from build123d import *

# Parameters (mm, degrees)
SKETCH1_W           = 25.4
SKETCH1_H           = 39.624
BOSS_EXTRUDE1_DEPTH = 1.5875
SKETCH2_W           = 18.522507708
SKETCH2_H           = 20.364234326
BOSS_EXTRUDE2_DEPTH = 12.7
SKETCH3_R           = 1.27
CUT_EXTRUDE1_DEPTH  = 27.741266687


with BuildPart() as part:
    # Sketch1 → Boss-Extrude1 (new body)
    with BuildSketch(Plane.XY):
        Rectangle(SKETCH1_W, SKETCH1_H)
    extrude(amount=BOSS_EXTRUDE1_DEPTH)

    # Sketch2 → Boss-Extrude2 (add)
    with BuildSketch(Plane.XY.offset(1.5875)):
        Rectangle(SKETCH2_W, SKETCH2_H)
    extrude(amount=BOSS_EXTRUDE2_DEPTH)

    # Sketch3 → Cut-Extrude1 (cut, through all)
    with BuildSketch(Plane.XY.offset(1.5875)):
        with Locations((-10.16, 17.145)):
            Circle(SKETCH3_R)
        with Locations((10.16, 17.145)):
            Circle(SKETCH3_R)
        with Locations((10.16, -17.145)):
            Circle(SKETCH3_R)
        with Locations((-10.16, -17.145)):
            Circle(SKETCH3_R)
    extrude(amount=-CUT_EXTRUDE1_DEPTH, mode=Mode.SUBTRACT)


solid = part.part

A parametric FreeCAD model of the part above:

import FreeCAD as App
import Part
import Sketcher
Q = App.Units.Quantity

doc = App.newDocument("Part")
params = doc.addObject("Spreadsheet::Sheet", "Params")
for row, (alias, value) in enumerate([
    ("sketch1_width", "1 in"),
    ("sketch1_height", "1.56 in"),
    ("pad1_length", "0.0625 in"),
    ("pad2_length", "0.5 in"),
    ("sketch3_diameter", "0.1 in"),
], start=1):
    params.set(f"A{row}", alias)
    params.set(f"B{row}", "=" + value)
    params.setAlias(f"B{row}", alias)

body = doc.addObject("PartDesign::Body", "Body")

# Sketch on XY plane
sketch1 = body.newObject("Sketcher::SketchObject", "Sketch")
sketch1.AttachmentSupport = (doc.getObject("XY_Plane"), [""])
sketch1.MapMode = "FlatFace"
sketch1.addGeometry(Part.LineSegment(App.Vector(-13, 20, 0), App.Vector(-13, -20, 0)), False)
sketch1.addGeometry(Part.LineSegment(App.Vector(-13, -20, 0), App.Vector(13, -20, 0)), False)
sketch1.addGeometry(Part.LineSegment(App.Vector(13, -20, 0), App.Vector(13, 20, 0)), False)
sketch1.addGeometry(Part.LineSegment(App.Vector(13, 20, 0), App.Vector(-13, 20, 0)), False)
sketch1.addConstraint(Sketcher.Constraint("Coincident", 0, 2, 1, 1))
sketch1.addConstraint(Sketcher.Constraint("Coincident", 1, 2, 2, 1))
sketch1.addConstraint(Sketcher.Constraint("Coincident", 2, 2, 3, 1))
sketch1.addConstraint(Sketcher.Constraint("Coincident", 3, 2, 0, 1))
sketch1.addConstraint(Sketcher.Constraint("Vertical", 0))
sketch1.addConstraint(Sketcher.Constraint("Horizontal", 1))
sketch1.addConstraint(Sketcher.Constraint("Vertical", 2))
sketch1.addConstraint(Sketcher.Constraint("Horizontal", 3))
sketch1.addConstraint(Sketcher.Constraint("Symmetric", 0, 2, 2, 2, -1, 1))
sketch1.addConstraint(Sketcher.Constraint("DistanceX", 1, 1, 1, 2, Q("1 in")))
sketch1.addConstraint(Sketcher.Constraint("DistanceY", 0, 2, 0, 1, Q("1.56 in")))
sketch1.setExpression("Constraints[9]", "Params.sketch1_width")
sketch1.setExpression("Constraints[10]", "Params.sketch1_height")
pad1 = body.newObject("PartDesign::Pad", "Pad")
pad1.Profile = sketch1
pad1.setExpression("Length", "Params.pad1_length")

# Sketch on XY plane
sketch2 = body.newObject("Sketcher::SketchObject", "Sketch001")
sketch2.AttachmentSupport = (doc.getObject("XY_Plane"), [""])
sketch2.MapMode = "FlatFace"
sketch2.AttachmentOffset = App.Placement(App.Vector(0, 0, 0.0625 * 25.4), App.Rotation())
sketch2.addGeometry(Part.LineSegment(App.Vector(-9, 10, 0), App.Vector(-9, -10, 0)), False)
sketch2.addGeometry(Part.LineSegment(App.Vector(-9, -10, 0), App.Vector(9, -10, 0)), False)
sketch2.addGeometry(Part.LineSegment(App.Vector(9, -10, 0), App.Vector(9, 10, 0)), False)
sketch2.addGeometry(Part.LineSegment(App.Vector(9, 10, 0), App.Vector(-9, 10, 0)), False)
sketch2.addConstraint(Sketcher.Constraint("Coincident", 0, 2, 1, 1))
sketch2.addConstraint(Sketcher.Constraint("Coincident", 1, 2, 2, 1))
sketch2.addConstraint(Sketcher.Constraint("Coincident", 2, 2, 3, 1))
sketch2.addConstraint(Sketcher.Constraint("Coincident", 3, 2, 0, 1))
sketch2.addConstraint(Sketcher.Constraint("Vertical", 0))
sketch2.addConstraint(Sketcher.Constraint("Horizontal", 1))
sketch2.addConstraint(Sketcher.Constraint("Vertical", 2))
sketch2.addConstraint(Sketcher.Constraint("Horizontal", 3))
sketch2.addConstraint(Sketcher.Constraint("Symmetric", 0, 2, 2, 2, -1, 1))
sketch2.addConstraint(Sketcher.Constraint("DistanceX", 1, 1, 1, 2, 18.522508))
sketch2.addConstraint(Sketcher.Constraint("DistanceY", 0, 2, 0, 1, 20.364234))
pad2 = body.newObject("PartDesign::Pad", "Pad001")
pad2.Profile = sketch2
pad2.setExpression("Length", "Params.pad2_length")

# Sketch on XY plane
sketch3 = body.newObject("Sketcher::SketchObject", "Sketch002")
sketch3.AttachmentSupport = (doc.getObject("XY_Plane"), [""])
sketch3.MapMode = "FlatFace"
sketch3.AttachmentOffset = App.Placement(App.Vector(0, 0, 0.0625 * 25.4), App.Rotation())
sketch3.addGeometry(Part.Circle(App.Vector(-10.2, 17.1, 0), App.Vector(0, 0, 1), 1.3), False)
sketch3.addGeometry(Part.Circle(App.Vector(10.2, 17.1, 0), App.Vector(0, 0, 1), 1.3), False)
sketch3.addGeometry(Part.Circle(App.Vector(10.2, -17.1, 0), App.Vector(0, 0, 1), 1.3), False)
sketch3.addGeometry(Part.Circle(App.Vector(-10.2, -17.1, 0), App.Vector(0, 0, 1), 1.3), False)
sketch3.addConstraint(Sketcher.Constraint("Equal", 0, 1))
sketch3.addConstraint(Sketcher.Constraint("Equal", 1, 2))
sketch3.addConstraint(Sketcher.Constraint("Equal", 2, 3))
sketch3.addConstraint(Sketcher.Constraint("Symmetric", 0, 3, 2, 3, -1, 1))
sketch3.addConstraint(Sketcher.Constraint("Symmetric", 1, 3, 3, 3, -1, 1))
sketch3.addConstraint(Sketcher.Constraint("Symmetric", 0, 3, 1, 3, -2))
sketch3.addConstraint(Sketcher.Constraint("Diameter", 0, Q("0.1 in")))
sketch3.addConstraint(Sketcher.Constraint("DistanceX", 0, 3, -1, 1, Q("0.4 in")))
sketch3.addConstraint(Sketcher.Constraint("DistanceY", 2, 3, 1, 3, Q("1.35 in")))
sketch3.setExpression("Constraints[6]", "Params.sketch3_diameter")
pocket1 = body.newObject("PartDesign::Pocket", "Pocket")
pocket1.Profile = sketch3
pocket1.Type = "ThroughAll"

doc.recompute()
